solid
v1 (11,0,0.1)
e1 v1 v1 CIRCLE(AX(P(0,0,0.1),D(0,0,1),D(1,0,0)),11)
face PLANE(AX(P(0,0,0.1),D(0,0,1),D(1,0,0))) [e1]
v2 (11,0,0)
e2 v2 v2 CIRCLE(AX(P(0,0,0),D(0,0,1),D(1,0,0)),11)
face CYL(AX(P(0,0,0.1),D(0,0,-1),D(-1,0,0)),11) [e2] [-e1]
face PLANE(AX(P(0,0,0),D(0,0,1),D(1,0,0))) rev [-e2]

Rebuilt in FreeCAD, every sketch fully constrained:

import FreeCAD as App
import Part
import Sketcher

doc = App.newDocument("Part")
body = doc.addObject("PartDesign::Body", "Body")

# Sketch on XY plane
sketch1 = doc.addObject("Sketcher::SketchObject", "Sketch")
body.addObject(sketch1)
sketch1.AttachmentSupport = (doc.XY_Plane, [""])
sketch1.MapMode = "FlatFace"
sketch1.addGeometry(Part.Circle(App.Vector(0, 0, 0), App.Vector(0, 0, 1), 11), False)
sketch1.addConstraint([
    Sketcher.Constraint("Coincident", 0, 3, -1, 1),
    Sketcher.Constraint("Diameter", 0, 22.0),
])
pad1 = doc.addObject("PartDesign::Pad", "Pad")
body.addObject(pad1)
pad1.Profile = sketch1
pad1.Length = 0.1

doc.recompute()
